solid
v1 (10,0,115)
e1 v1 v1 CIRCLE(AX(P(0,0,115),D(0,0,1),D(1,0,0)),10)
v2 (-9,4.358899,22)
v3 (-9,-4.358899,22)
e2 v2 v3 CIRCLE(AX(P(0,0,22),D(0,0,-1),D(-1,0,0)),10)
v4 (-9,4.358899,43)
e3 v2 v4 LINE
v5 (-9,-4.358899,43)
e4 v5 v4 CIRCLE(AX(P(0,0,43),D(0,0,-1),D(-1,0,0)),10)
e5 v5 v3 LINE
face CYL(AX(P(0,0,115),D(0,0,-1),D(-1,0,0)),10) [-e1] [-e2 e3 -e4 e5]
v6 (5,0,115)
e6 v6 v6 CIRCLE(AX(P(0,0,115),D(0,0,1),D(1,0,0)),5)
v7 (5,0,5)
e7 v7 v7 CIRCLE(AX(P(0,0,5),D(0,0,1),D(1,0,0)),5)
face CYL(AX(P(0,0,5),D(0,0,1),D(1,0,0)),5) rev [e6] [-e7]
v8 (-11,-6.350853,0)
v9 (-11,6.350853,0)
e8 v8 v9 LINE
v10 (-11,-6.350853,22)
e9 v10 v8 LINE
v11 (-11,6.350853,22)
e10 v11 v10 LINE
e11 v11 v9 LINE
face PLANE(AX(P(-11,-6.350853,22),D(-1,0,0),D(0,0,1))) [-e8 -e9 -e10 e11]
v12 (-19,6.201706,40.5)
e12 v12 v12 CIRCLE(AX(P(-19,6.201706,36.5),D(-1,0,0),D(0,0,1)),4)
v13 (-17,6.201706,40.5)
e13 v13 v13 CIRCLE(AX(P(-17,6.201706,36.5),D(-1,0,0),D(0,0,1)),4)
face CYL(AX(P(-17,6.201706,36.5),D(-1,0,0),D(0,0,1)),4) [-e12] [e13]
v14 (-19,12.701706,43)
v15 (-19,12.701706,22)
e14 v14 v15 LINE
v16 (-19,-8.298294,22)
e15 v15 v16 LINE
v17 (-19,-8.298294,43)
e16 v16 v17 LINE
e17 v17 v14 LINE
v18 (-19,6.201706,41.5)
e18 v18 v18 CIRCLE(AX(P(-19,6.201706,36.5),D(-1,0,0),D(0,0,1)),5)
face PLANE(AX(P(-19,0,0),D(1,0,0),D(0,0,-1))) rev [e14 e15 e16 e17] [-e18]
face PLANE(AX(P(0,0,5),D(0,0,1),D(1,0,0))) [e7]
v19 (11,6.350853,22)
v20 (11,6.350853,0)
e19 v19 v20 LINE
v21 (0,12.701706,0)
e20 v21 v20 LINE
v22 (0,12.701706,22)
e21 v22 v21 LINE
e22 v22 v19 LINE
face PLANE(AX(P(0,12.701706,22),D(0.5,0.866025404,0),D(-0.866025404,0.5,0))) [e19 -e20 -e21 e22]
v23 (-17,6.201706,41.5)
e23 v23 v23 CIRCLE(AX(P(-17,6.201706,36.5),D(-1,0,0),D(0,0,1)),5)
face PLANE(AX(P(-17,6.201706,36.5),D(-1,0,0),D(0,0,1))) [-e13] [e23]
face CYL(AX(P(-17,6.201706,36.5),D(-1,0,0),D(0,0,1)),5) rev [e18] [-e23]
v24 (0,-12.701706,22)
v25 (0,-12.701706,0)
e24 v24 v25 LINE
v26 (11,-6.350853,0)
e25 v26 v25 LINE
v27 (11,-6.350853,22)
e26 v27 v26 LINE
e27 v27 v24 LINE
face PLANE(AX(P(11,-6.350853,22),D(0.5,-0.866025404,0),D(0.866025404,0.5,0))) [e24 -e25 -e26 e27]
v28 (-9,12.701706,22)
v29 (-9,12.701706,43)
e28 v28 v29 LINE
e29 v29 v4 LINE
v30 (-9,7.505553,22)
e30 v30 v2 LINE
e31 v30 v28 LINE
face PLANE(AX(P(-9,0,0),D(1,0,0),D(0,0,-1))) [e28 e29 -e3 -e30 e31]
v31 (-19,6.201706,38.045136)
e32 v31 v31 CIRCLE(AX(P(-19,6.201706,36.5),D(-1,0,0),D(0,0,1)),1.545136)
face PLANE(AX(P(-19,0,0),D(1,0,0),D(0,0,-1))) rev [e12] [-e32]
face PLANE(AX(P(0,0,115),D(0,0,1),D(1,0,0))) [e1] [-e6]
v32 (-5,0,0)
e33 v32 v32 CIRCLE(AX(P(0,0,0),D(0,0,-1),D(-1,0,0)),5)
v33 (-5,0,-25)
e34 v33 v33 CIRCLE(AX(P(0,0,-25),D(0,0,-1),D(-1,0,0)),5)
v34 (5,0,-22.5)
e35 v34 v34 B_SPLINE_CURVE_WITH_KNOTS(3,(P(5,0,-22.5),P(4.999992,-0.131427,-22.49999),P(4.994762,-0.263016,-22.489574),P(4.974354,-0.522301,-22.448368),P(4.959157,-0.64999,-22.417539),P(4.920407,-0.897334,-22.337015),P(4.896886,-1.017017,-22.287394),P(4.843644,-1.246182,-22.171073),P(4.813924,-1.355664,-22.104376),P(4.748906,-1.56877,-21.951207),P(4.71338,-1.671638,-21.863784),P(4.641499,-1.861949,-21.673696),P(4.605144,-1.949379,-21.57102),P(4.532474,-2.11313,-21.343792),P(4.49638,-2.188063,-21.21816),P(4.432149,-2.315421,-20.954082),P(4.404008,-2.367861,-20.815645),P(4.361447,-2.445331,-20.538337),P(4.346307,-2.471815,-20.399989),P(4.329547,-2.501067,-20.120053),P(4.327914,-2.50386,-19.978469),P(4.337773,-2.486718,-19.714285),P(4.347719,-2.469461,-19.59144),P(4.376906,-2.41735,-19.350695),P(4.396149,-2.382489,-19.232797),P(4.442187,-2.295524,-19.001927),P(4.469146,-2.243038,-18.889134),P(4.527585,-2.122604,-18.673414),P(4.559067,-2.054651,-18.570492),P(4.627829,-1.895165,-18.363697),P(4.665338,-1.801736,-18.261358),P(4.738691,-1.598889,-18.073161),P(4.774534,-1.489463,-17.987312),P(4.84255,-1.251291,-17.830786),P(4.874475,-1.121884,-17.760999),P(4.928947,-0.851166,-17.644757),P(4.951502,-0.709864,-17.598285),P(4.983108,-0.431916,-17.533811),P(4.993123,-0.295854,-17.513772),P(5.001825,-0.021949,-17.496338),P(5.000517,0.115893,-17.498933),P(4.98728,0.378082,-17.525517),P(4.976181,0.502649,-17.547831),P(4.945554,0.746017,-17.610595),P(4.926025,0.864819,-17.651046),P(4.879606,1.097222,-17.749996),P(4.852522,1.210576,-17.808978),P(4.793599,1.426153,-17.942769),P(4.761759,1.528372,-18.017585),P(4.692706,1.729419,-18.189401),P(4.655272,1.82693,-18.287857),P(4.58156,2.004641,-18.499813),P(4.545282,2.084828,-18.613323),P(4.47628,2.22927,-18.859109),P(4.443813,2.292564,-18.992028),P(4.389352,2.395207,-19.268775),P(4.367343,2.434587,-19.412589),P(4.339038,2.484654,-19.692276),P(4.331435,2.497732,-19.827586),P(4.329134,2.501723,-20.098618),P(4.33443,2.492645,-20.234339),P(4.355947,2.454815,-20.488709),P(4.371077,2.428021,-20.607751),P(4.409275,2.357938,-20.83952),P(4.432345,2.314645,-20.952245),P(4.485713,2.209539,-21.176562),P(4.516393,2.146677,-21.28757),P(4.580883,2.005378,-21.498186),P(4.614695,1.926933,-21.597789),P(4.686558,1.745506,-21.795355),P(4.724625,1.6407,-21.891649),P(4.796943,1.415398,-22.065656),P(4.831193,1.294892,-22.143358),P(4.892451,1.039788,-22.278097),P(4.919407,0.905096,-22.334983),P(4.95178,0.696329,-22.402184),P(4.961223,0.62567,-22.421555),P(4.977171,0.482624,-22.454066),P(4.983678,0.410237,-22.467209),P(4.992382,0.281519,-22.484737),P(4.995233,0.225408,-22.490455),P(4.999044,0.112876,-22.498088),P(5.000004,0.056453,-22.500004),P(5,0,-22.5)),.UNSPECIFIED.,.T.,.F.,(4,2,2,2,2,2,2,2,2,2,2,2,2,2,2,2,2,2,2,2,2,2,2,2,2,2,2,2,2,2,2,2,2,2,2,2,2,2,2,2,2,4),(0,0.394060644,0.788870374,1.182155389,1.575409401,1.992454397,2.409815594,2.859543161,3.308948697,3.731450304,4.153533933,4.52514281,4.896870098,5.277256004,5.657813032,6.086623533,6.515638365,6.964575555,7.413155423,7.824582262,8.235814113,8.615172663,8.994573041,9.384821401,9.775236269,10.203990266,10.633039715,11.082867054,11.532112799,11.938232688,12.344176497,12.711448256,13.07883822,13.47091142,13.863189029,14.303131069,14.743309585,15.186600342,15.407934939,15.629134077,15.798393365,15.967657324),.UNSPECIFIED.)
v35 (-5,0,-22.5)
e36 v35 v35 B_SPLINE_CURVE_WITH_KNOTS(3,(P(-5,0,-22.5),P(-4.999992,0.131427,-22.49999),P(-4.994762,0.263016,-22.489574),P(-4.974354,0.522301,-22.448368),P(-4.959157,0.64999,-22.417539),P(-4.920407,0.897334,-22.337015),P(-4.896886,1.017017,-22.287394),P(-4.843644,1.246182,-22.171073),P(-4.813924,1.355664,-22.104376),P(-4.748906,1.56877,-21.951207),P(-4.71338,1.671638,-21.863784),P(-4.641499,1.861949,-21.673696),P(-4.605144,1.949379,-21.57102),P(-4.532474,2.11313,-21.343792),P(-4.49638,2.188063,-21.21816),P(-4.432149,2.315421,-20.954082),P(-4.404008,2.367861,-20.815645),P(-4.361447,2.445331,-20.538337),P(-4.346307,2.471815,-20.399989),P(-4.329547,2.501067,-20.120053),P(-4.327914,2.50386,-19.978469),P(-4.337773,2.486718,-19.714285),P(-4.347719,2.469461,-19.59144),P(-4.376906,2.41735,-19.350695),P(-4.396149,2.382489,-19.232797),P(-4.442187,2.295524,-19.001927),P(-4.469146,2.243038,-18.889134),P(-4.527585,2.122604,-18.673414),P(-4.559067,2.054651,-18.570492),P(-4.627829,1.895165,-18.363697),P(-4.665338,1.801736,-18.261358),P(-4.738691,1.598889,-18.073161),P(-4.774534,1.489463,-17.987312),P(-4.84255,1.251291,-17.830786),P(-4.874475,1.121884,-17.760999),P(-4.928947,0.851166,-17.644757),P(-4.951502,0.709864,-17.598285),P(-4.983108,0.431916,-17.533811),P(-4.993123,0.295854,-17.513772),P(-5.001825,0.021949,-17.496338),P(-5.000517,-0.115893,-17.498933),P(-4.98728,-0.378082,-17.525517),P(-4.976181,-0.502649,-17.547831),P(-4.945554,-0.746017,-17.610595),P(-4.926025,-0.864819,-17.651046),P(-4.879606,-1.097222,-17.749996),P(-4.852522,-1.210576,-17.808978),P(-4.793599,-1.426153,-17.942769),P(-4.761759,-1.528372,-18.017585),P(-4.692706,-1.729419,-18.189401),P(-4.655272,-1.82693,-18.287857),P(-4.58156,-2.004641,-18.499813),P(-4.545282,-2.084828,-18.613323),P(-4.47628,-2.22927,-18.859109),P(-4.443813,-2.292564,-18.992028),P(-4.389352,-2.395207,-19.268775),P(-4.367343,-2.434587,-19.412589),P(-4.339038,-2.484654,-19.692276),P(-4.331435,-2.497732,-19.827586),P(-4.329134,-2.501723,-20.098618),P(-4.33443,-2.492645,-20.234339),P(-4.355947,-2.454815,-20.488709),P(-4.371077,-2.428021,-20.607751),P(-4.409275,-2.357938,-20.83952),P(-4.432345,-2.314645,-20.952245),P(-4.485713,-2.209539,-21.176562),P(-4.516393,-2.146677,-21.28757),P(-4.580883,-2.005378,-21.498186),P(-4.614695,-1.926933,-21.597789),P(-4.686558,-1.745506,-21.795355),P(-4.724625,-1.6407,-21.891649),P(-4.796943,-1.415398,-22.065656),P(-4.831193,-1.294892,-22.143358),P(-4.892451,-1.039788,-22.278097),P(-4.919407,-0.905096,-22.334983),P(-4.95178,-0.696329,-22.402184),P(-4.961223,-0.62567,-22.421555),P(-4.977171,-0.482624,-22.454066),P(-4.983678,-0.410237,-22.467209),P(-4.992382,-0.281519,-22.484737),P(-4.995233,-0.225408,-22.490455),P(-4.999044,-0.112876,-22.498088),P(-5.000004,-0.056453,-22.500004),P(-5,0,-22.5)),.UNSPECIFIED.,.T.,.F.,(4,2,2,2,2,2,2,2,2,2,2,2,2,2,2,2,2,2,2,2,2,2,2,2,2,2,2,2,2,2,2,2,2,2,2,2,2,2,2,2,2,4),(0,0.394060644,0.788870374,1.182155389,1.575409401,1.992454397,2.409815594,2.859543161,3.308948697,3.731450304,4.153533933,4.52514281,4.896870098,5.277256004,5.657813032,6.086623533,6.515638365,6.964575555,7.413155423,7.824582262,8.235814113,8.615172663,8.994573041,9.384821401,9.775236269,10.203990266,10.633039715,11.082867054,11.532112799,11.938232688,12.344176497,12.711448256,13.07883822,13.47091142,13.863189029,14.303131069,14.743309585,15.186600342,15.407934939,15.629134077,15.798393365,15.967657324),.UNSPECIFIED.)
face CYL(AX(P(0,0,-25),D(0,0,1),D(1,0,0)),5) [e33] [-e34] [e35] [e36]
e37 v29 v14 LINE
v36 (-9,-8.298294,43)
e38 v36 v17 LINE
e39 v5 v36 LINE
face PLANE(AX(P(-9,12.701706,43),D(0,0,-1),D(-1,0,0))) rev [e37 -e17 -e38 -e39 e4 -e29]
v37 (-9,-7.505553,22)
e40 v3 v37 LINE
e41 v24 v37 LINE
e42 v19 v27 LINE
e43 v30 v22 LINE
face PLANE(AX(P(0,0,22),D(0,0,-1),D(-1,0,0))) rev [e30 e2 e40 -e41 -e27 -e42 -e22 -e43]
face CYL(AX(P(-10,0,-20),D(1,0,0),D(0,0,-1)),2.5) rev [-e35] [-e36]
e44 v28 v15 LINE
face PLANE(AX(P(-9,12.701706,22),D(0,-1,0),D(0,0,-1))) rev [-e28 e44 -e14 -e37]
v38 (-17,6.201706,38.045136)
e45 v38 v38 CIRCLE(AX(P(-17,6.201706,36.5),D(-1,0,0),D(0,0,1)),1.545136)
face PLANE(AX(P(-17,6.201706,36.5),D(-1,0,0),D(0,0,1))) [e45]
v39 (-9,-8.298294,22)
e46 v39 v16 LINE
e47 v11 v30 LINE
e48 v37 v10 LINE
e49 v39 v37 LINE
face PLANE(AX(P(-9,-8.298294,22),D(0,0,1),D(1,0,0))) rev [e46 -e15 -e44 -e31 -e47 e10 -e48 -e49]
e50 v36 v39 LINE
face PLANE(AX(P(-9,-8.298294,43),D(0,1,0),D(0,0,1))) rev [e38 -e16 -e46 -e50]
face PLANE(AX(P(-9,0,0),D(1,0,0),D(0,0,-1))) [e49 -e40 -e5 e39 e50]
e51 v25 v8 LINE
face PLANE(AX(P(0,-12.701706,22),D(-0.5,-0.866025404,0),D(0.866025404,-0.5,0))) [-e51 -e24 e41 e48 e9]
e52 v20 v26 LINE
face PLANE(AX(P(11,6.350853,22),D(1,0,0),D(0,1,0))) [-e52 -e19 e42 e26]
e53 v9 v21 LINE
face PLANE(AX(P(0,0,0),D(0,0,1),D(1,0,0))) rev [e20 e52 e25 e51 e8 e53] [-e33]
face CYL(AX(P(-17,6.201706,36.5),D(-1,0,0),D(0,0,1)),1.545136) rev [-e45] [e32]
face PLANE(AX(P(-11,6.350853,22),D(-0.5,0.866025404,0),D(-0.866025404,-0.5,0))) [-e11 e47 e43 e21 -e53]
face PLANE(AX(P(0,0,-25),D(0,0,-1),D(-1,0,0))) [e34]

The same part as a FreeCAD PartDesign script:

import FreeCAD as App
import Part
import Sketcher
from FreeCAD import Vector
Q = App.Units.Quantity

doc = App.newDocument("Part")
body = doc.addObject("PartDesign::Body", "Body")

sketch1 = doc.addObject("Sketcher::SketchObject", "Sketch")
body.addObject(sketch1)
sketch1.AttachmentSupport = (doc.XY_Plane, [""])
sketch1.MapMode = "FlatFace"
sketch1.addGeometry(Part.Circle(Vector(0, 0, 0), Vector(0, 0, 1), 10), False)
sketch1.addConstraint(Sketcher.Constraint("Coincident", 0, 3, -1, 1))
sketch1.addConstraint(Sketcher.Constraint("Diameter", 0, Q("20 mm")))
pad1 = doc.addObject("PartDesign::Pad", "Pad")
body.addObject(pad1)
pad1.Profile = sketch1
pad1.Length = 115

sketch2 = doc.addObject("Sketcher::SketchObject", "Sketch001")
body.addObject(sketch2)
sketch2.AttachmentSupport = (doc.XY_Plane, [""])
sketch2.MapMode = "FlatFace"
sketch2.addGeometry(Part.Circle(Vector(0, 0, 0), Vector(0, 0, 1), 5), False)
sketch2.addConstraint(Sketcher.Constraint("Coincident", 0, 3, -1, 1))
sketch2.addConstraint(Sketcher.Constraint("Diameter", 0, Q("10 mm")))
pad2 = doc.addObject("PartDesign::Pad", "Pad001")
body.addObject(pad2)
pad2.Profile = sketch2
pad2.Length = 25
pad2.Reversed = True

sketch3 = doc.addObject("Sketcher::SketchObject", "Sketch002")
body.addObject(sketch3)
sketch3.AttachmentSupport = (doc.XY_Plane, [""])
sketch3.MapMode = "FlatFace"
sketch3.AttachmentOffset = App.Placement(Vector(0, 0, 115), App.Rotation())
sketch3.addGeometry(Part.Circle(Vector(0, 0, 0), Vector(0, 0, 1), 5), False)
sketch3.addConstraint(Sketcher.Constraint("Coincident", 0, 3, -1, 1))
sketch3.addConstraint(Sketcher.Constraint("Diameter", 0, Q("10 mm")))
pocket1 = doc.addObject("PartDesign::Pocket", "Pocket")
body.addObject(pocket1)
pocket1.Profile = sketch3
pocket1.Length = 110

sketch4 = doc.addObject("Sketcher::SketchObject", "Sketch003")
body.addObject(sketch4)
sketch4.AttachmentSupport = (doc.YZ_Plane, [""])
sketch4.MapMode = "FlatFace"
sketch4.addGeometry(Part.Circle(Vector(0, -20, 0), Vector(0, 0, 1), 2.5), False)
sketch4.addConstraint(Sketcher.Constraint("PointOnObject", 0, 3, -2))
sketch4.addConstraint(Sketcher.Constraint("Diameter", 0, Q("5 mm")))
sketch4.addConstraint(Sketcher.Constraint("DistanceY", 0, 3, -1, 1, Q("20 mm")))
pocket2 = doc.addObject("PartDesign::Pocket", "Pocket001")
body.addObject(pocket2)
pocket2.Profile = sketch4
pocket2.Type = "ThroughAll"
pocket2.Midplane = True

sketch5 = doc.addObject("Sketcher::SketchObject", "Sketch004")
body.addObject(sketch5)
sketch5.AttachmentSupport = (doc.XY_Plane, [""])
sketch5.MapMode = "FlatFace"
sketch5.addGeometry(Part.LineSegment(Vector(0, -12.701706, 0), Vector(-11, -6.350853, 0)), False)
sketch5.addGeometry(Part.LineSegment(Vector(-11, -6.350853, 0), Vector(-11, 6.350853, 0)), False)
sketch5.addGeometry(Part.LineSegment(Vector(-11, 6.350853, 0), Vector(0, 12.701706, 0)), False)
sketch5.addGeometry(Part.LineSegment(Vector(0, 12.701706, 0), Vector(11, 6.350853, 0)), False)
sketch5.addGeometry(Part.LineSegment(Vector(11, 6.350853, 0), Vector(11, -6.350853, 0)), False)
sketch5.addGeometry(Part.LineSegment(Vector(11, -6.350853, 0), Vector(0, -12.701706, 0)), False)
sketch5.addGeometry(Part.Circle(Vector(0, 0, 0), Vector(0, 0, 1), 10), False)
sketch5.addConstraint(Sketcher.Constraint("Coincident", 0, 2, 1, 1))
sketch5.addConstraint(Sketcher.Constraint("Coincident", 1, 2, 2, 1))
sketch5.addConstraint(Sketcher.Constraint("Coincident", 2, 2, 3, 1))
sketch5.addConstraint(Sketcher.Constraint("Coincident", 3, 2, 4, 1))
sketch5.addConstraint(Sketcher.Constraint("Coincident", 4, 2, 5, 1))
sketch5.addConstraint(Sketcher.Constraint("Coincident", 5, 2, 0, 1))
sketch5.addConstraint(Sketcher.Constraint("Vertical", 1))
sketch5.addConstraint(Sketcher.Constraint("Vertical", 4))
sketch5.addConstraint(Sketcher.Constraint("Coincident", 6, 3, -1, 1))
sketch5.addConstraint(Sketcher.Constraint("Symmetric", 0, 2, 3, 2, -1, 1))
sketch5.addConstraint(Sketcher.Constraint("Symmetric", 2, 2, 5, 2, -1, 1))
sketch5.addConstraint(Sketcher.Constraint("PointOnObject", 2, 2, -2))
sketch5.addConstraint(Sketcher.Constraint("Parallel", 2, 5))
sketch5.addConstraint(Sketcher.Constraint("Horizontal", 1, 2, 3, 2))
sketch5.addConstraint(Sketcher.Constraint("Diameter", 6, Q("20 mm")))
sketch5.addConstraint(Sketcher.Constraint("Angle", 0, Q("150 deg")))
sketch5.addConstraint(Sketcher.Constraint("DistanceX", 0, 2, -1, 1, Q("11 mm")))
sketch5.addConstraint(Sketcher.Constraint("DistanceY", 1, 1, 1, 2, Q("12.701706 mm")))
pad3 = doc.addObject("PartDesign::Pad", "Pad002")
body.addObject(pad3)
pad3.Profile = sketch5
pad3.Length = 22
body2 = doc.addObject("PartDesign::Body", "Body001")

sketch6 = doc.addObject("Sketcher::SketchObject", "Sketch005")
body2.addObject(sketch6)
sketch6.AttachmentSupport = (doc.getObject("YZ_Plane001"), [""])
sketch6.MapMode = "FlatFace"
sketch6.AttachmentOffset = App.Placement(Vector(0, 0, -11), App.Rotation())
sketch6.addGeometry(Part.LineSegment(Vector(12.701706, 22, 0), Vector(-8.298294, 22, 0)), False)
sketch6.addGeometry(Part.LineSegment(Vector(-8.298294, 22, 0), Vector(-8.298294, 43, 0)), False)
sketch6.addGeometry(Part.LineSegment(Vector(-8.298294, 43, 0), Vector(12.701706, 43, 0)), False)
sketch6.addGeometry(Part.LineSegment(Vector(12.701706, 43, 0), Vector(12.701706, 22, 0)), False)
sketch6.addConstraint(Sketcher.Constraint("Coincident", 0, 2, 1, 1))
sketch6.addConstraint(Sketcher.Constraint("Coincident", 1, 2, 2, 1))
sketch6.addConstraint(Sketcher.Constraint("Coincident", 2, 2, 3, 1))
sketch6.addConstraint(Sketcher.Constraint("Coincident", 3, 2, 0, 1))
sketch6.addConstraint(Sketcher.Constraint("Horizontal", 0))
sketch6.addConstraint(Sketcher.Constraint("Vertical", 1))
sketch6.addConstraint(Sketcher.Constraint("Horizontal", 2))
sketch6.addConstraint(Sketcher.Constraint("Vertical", 3))
sketch6.addConstraint(Sketcher.Constraint("Equal", 2, 1))
sketch6.addConstraint(Sketcher.Constraint("DistanceX", 0, 2, 0, 1, Q("21 mm")))
sketch6.addConstraint(Sketcher.Constraint("DistanceY", -1, 1, 0, 2, Q("22 mm")))
sketch6.addConstraint(Sketcher.Constraint("DistanceX", 0, 2, -1, 1, Q("8.298294 mm")))
pad4 = doc.addObject("PartDesign::Pad", "Pad003")
body2.addObject(pad4)
pad4.Profile = sketch6
pad4.Length = 8
pad4.Reversed = True
body.AllowCompound = True
doc.recompute()

boolean = doc.addObject("PartDesign::Boolean", "Boolean")
body.addObject(boolean)
boolean.Type = "Fuse"
boolean.addObjects([body2])

sketch7 = doc.addObject("Sketcher::SketchObject", "Sketch006")
body.addObject(sketch7)
sketch7.AttachmentSupport = (doc.YZ_Plane, [""])
sketch7.MapMode = "FlatFace"
sketch7.AttachmentOffset = App.Placement(Vector(0, 0, -11), App.Rotation())
sketch7.addGeometry(Part.LineSegment(Vector(12.701706, 43, 0), Vector(-8.298294, 43, 0)), False)
sketch7.addGeometry(Part.LineSegment(Vector(-8.298294, 43, 0), Vector(-8.298294, 22, 0)), False)
sketch7.addGeometry(Part.LineSegment(Vector(-8.298294, 22, 0), Vector(12.701706, 22, 0)), False)
sketch7.addGeometry(Part.LineSegment(Vector(12.701706, 22, 0), Vector(12.701706, 43, 0)), False)
sketch7.addConstraint(Sketcher.Constraint("Coincident", 0, 2, 1, 1))
sketch7.addConstraint(Sketcher.Constraint("Coincident", 1, 2, 2, 1))
sketch7.addConstraint(Sketcher.Constraint("Coincident", 2, 2, 3, 1))
sketch7.addConstraint(Sketcher.Constraint("Coincident", 3, 2, 0, 1))
sketch7.addConstraint(Sketcher.Constraint("Horizontal", 0))
sketch7.addConstraint(Sketcher.Constraint("Vertical", 1))
sketch7.addConstraint(Sketcher.Constraint("Horizontal", 2))
sketch7.addConstraint(Sketcher.Constraint("Vertical", 3))
sketch7.addConstraint(Sketcher.Constraint("Equal", 2, 1))
sketch7.addConstraint(Sketcher.Constraint("DistanceX", 0, 2, 0, 1, Q("21 mm")))
sketch7.addConstraint(Sketcher.Constraint("DistanceY", -1, 1, 0, 2, Q("43 mm")))
sketch7.addConstraint(Sketcher.Constraint("DistanceX", 0, 2, -1, 1, Q("8.298294 mm")))
pad5 = doc.addObject("PartDesign::Pad", "Pad004")
body.addObject(pad5)
pad5.Profile = sketch7
pad5.Length = 2

sketch8 = doc.addObject("Sketcher::SketchObject", "Sketch007")
body.addObject(sketch8)
sketch8.AttachmentSupport = (doc.YZ_Plane, [""])
sketch8.MapMode = "FlatFace"
sketch8.AttachmentOffset = App.Placement(Vector(0, 0, -19), App.Rotation())
sketch8.addGeometry(Part.Circle(Vector(6.201706, 36.5, 0), Vector(0, 0, 1), 5), False)
sketch8.addGeometry(Part.Circle(Vector(6.201706, 36.5, 0), Vector(0, 0, 1), 4), False)
sketch8.addConstraint(Sketcher.Constraint("Coincident", 1, 3, 0, 3))
sketch8.addConstraint(Sketcher.Constraint("Diameter", 0, Q("10 mm")))
sketch8.addConstraint(Sketcher.Constraint("Diameter", 1, Q("8 mm")))
sketch8.addConstraint(Sketcher.Constraint("DistanceY", -1, 1, 0, 3, Q("36.5 mm")))
sketch8.addConstraint(Sketcher.Constraint("DistanceX", -1, 1, 0, 3, Q("6.201706 mm")))
pocket3 = doc.addObject("PartDesign::Pocket", "Pocket002")
body.addObject(pocket3)
pocket3.Profile = sketch8
pocket3.Length = 2
pocket3.Reversed = True

sketch9 = doc.addObject("Sketcher::SketchObject", "Sketch008")
body.addObject(sketch9)
sketch9.AttachmentSupport = (doc.YZ_Plane, [""])
sketch9.MapMode = "FlatFace"
sketch9.AttachmentOffset = App.Placement(Vector(0, 0, -19), App.Rotation())
sketch9.addGeometry(Part.Circle(Vector(6.201706, 36.5, 0), Vector(0, 0, 1), 1.545136), False)
sketch9.addConstraint(Sketcher.Constraint("DistanceY", -1, 1, 0, 3, Q("36.5 mm")))
sketch9.addConstraint(Sketcher.Constraint("Diameter", 0, Q("3.090272 mm")))
sketch9.addConstraint(Sketcher.Constraint("DistanceX", -1, 1, 0, 3, Q("6.201706 mm")))
pocket4 = doc.addObject("PartDesign::Pocket", "Pocket003")
body.addObject(pocket4)
pocket4.Profile = sketch9
pocket4.Length = 2
pocket4.Reversed = True

doc.recompute()
